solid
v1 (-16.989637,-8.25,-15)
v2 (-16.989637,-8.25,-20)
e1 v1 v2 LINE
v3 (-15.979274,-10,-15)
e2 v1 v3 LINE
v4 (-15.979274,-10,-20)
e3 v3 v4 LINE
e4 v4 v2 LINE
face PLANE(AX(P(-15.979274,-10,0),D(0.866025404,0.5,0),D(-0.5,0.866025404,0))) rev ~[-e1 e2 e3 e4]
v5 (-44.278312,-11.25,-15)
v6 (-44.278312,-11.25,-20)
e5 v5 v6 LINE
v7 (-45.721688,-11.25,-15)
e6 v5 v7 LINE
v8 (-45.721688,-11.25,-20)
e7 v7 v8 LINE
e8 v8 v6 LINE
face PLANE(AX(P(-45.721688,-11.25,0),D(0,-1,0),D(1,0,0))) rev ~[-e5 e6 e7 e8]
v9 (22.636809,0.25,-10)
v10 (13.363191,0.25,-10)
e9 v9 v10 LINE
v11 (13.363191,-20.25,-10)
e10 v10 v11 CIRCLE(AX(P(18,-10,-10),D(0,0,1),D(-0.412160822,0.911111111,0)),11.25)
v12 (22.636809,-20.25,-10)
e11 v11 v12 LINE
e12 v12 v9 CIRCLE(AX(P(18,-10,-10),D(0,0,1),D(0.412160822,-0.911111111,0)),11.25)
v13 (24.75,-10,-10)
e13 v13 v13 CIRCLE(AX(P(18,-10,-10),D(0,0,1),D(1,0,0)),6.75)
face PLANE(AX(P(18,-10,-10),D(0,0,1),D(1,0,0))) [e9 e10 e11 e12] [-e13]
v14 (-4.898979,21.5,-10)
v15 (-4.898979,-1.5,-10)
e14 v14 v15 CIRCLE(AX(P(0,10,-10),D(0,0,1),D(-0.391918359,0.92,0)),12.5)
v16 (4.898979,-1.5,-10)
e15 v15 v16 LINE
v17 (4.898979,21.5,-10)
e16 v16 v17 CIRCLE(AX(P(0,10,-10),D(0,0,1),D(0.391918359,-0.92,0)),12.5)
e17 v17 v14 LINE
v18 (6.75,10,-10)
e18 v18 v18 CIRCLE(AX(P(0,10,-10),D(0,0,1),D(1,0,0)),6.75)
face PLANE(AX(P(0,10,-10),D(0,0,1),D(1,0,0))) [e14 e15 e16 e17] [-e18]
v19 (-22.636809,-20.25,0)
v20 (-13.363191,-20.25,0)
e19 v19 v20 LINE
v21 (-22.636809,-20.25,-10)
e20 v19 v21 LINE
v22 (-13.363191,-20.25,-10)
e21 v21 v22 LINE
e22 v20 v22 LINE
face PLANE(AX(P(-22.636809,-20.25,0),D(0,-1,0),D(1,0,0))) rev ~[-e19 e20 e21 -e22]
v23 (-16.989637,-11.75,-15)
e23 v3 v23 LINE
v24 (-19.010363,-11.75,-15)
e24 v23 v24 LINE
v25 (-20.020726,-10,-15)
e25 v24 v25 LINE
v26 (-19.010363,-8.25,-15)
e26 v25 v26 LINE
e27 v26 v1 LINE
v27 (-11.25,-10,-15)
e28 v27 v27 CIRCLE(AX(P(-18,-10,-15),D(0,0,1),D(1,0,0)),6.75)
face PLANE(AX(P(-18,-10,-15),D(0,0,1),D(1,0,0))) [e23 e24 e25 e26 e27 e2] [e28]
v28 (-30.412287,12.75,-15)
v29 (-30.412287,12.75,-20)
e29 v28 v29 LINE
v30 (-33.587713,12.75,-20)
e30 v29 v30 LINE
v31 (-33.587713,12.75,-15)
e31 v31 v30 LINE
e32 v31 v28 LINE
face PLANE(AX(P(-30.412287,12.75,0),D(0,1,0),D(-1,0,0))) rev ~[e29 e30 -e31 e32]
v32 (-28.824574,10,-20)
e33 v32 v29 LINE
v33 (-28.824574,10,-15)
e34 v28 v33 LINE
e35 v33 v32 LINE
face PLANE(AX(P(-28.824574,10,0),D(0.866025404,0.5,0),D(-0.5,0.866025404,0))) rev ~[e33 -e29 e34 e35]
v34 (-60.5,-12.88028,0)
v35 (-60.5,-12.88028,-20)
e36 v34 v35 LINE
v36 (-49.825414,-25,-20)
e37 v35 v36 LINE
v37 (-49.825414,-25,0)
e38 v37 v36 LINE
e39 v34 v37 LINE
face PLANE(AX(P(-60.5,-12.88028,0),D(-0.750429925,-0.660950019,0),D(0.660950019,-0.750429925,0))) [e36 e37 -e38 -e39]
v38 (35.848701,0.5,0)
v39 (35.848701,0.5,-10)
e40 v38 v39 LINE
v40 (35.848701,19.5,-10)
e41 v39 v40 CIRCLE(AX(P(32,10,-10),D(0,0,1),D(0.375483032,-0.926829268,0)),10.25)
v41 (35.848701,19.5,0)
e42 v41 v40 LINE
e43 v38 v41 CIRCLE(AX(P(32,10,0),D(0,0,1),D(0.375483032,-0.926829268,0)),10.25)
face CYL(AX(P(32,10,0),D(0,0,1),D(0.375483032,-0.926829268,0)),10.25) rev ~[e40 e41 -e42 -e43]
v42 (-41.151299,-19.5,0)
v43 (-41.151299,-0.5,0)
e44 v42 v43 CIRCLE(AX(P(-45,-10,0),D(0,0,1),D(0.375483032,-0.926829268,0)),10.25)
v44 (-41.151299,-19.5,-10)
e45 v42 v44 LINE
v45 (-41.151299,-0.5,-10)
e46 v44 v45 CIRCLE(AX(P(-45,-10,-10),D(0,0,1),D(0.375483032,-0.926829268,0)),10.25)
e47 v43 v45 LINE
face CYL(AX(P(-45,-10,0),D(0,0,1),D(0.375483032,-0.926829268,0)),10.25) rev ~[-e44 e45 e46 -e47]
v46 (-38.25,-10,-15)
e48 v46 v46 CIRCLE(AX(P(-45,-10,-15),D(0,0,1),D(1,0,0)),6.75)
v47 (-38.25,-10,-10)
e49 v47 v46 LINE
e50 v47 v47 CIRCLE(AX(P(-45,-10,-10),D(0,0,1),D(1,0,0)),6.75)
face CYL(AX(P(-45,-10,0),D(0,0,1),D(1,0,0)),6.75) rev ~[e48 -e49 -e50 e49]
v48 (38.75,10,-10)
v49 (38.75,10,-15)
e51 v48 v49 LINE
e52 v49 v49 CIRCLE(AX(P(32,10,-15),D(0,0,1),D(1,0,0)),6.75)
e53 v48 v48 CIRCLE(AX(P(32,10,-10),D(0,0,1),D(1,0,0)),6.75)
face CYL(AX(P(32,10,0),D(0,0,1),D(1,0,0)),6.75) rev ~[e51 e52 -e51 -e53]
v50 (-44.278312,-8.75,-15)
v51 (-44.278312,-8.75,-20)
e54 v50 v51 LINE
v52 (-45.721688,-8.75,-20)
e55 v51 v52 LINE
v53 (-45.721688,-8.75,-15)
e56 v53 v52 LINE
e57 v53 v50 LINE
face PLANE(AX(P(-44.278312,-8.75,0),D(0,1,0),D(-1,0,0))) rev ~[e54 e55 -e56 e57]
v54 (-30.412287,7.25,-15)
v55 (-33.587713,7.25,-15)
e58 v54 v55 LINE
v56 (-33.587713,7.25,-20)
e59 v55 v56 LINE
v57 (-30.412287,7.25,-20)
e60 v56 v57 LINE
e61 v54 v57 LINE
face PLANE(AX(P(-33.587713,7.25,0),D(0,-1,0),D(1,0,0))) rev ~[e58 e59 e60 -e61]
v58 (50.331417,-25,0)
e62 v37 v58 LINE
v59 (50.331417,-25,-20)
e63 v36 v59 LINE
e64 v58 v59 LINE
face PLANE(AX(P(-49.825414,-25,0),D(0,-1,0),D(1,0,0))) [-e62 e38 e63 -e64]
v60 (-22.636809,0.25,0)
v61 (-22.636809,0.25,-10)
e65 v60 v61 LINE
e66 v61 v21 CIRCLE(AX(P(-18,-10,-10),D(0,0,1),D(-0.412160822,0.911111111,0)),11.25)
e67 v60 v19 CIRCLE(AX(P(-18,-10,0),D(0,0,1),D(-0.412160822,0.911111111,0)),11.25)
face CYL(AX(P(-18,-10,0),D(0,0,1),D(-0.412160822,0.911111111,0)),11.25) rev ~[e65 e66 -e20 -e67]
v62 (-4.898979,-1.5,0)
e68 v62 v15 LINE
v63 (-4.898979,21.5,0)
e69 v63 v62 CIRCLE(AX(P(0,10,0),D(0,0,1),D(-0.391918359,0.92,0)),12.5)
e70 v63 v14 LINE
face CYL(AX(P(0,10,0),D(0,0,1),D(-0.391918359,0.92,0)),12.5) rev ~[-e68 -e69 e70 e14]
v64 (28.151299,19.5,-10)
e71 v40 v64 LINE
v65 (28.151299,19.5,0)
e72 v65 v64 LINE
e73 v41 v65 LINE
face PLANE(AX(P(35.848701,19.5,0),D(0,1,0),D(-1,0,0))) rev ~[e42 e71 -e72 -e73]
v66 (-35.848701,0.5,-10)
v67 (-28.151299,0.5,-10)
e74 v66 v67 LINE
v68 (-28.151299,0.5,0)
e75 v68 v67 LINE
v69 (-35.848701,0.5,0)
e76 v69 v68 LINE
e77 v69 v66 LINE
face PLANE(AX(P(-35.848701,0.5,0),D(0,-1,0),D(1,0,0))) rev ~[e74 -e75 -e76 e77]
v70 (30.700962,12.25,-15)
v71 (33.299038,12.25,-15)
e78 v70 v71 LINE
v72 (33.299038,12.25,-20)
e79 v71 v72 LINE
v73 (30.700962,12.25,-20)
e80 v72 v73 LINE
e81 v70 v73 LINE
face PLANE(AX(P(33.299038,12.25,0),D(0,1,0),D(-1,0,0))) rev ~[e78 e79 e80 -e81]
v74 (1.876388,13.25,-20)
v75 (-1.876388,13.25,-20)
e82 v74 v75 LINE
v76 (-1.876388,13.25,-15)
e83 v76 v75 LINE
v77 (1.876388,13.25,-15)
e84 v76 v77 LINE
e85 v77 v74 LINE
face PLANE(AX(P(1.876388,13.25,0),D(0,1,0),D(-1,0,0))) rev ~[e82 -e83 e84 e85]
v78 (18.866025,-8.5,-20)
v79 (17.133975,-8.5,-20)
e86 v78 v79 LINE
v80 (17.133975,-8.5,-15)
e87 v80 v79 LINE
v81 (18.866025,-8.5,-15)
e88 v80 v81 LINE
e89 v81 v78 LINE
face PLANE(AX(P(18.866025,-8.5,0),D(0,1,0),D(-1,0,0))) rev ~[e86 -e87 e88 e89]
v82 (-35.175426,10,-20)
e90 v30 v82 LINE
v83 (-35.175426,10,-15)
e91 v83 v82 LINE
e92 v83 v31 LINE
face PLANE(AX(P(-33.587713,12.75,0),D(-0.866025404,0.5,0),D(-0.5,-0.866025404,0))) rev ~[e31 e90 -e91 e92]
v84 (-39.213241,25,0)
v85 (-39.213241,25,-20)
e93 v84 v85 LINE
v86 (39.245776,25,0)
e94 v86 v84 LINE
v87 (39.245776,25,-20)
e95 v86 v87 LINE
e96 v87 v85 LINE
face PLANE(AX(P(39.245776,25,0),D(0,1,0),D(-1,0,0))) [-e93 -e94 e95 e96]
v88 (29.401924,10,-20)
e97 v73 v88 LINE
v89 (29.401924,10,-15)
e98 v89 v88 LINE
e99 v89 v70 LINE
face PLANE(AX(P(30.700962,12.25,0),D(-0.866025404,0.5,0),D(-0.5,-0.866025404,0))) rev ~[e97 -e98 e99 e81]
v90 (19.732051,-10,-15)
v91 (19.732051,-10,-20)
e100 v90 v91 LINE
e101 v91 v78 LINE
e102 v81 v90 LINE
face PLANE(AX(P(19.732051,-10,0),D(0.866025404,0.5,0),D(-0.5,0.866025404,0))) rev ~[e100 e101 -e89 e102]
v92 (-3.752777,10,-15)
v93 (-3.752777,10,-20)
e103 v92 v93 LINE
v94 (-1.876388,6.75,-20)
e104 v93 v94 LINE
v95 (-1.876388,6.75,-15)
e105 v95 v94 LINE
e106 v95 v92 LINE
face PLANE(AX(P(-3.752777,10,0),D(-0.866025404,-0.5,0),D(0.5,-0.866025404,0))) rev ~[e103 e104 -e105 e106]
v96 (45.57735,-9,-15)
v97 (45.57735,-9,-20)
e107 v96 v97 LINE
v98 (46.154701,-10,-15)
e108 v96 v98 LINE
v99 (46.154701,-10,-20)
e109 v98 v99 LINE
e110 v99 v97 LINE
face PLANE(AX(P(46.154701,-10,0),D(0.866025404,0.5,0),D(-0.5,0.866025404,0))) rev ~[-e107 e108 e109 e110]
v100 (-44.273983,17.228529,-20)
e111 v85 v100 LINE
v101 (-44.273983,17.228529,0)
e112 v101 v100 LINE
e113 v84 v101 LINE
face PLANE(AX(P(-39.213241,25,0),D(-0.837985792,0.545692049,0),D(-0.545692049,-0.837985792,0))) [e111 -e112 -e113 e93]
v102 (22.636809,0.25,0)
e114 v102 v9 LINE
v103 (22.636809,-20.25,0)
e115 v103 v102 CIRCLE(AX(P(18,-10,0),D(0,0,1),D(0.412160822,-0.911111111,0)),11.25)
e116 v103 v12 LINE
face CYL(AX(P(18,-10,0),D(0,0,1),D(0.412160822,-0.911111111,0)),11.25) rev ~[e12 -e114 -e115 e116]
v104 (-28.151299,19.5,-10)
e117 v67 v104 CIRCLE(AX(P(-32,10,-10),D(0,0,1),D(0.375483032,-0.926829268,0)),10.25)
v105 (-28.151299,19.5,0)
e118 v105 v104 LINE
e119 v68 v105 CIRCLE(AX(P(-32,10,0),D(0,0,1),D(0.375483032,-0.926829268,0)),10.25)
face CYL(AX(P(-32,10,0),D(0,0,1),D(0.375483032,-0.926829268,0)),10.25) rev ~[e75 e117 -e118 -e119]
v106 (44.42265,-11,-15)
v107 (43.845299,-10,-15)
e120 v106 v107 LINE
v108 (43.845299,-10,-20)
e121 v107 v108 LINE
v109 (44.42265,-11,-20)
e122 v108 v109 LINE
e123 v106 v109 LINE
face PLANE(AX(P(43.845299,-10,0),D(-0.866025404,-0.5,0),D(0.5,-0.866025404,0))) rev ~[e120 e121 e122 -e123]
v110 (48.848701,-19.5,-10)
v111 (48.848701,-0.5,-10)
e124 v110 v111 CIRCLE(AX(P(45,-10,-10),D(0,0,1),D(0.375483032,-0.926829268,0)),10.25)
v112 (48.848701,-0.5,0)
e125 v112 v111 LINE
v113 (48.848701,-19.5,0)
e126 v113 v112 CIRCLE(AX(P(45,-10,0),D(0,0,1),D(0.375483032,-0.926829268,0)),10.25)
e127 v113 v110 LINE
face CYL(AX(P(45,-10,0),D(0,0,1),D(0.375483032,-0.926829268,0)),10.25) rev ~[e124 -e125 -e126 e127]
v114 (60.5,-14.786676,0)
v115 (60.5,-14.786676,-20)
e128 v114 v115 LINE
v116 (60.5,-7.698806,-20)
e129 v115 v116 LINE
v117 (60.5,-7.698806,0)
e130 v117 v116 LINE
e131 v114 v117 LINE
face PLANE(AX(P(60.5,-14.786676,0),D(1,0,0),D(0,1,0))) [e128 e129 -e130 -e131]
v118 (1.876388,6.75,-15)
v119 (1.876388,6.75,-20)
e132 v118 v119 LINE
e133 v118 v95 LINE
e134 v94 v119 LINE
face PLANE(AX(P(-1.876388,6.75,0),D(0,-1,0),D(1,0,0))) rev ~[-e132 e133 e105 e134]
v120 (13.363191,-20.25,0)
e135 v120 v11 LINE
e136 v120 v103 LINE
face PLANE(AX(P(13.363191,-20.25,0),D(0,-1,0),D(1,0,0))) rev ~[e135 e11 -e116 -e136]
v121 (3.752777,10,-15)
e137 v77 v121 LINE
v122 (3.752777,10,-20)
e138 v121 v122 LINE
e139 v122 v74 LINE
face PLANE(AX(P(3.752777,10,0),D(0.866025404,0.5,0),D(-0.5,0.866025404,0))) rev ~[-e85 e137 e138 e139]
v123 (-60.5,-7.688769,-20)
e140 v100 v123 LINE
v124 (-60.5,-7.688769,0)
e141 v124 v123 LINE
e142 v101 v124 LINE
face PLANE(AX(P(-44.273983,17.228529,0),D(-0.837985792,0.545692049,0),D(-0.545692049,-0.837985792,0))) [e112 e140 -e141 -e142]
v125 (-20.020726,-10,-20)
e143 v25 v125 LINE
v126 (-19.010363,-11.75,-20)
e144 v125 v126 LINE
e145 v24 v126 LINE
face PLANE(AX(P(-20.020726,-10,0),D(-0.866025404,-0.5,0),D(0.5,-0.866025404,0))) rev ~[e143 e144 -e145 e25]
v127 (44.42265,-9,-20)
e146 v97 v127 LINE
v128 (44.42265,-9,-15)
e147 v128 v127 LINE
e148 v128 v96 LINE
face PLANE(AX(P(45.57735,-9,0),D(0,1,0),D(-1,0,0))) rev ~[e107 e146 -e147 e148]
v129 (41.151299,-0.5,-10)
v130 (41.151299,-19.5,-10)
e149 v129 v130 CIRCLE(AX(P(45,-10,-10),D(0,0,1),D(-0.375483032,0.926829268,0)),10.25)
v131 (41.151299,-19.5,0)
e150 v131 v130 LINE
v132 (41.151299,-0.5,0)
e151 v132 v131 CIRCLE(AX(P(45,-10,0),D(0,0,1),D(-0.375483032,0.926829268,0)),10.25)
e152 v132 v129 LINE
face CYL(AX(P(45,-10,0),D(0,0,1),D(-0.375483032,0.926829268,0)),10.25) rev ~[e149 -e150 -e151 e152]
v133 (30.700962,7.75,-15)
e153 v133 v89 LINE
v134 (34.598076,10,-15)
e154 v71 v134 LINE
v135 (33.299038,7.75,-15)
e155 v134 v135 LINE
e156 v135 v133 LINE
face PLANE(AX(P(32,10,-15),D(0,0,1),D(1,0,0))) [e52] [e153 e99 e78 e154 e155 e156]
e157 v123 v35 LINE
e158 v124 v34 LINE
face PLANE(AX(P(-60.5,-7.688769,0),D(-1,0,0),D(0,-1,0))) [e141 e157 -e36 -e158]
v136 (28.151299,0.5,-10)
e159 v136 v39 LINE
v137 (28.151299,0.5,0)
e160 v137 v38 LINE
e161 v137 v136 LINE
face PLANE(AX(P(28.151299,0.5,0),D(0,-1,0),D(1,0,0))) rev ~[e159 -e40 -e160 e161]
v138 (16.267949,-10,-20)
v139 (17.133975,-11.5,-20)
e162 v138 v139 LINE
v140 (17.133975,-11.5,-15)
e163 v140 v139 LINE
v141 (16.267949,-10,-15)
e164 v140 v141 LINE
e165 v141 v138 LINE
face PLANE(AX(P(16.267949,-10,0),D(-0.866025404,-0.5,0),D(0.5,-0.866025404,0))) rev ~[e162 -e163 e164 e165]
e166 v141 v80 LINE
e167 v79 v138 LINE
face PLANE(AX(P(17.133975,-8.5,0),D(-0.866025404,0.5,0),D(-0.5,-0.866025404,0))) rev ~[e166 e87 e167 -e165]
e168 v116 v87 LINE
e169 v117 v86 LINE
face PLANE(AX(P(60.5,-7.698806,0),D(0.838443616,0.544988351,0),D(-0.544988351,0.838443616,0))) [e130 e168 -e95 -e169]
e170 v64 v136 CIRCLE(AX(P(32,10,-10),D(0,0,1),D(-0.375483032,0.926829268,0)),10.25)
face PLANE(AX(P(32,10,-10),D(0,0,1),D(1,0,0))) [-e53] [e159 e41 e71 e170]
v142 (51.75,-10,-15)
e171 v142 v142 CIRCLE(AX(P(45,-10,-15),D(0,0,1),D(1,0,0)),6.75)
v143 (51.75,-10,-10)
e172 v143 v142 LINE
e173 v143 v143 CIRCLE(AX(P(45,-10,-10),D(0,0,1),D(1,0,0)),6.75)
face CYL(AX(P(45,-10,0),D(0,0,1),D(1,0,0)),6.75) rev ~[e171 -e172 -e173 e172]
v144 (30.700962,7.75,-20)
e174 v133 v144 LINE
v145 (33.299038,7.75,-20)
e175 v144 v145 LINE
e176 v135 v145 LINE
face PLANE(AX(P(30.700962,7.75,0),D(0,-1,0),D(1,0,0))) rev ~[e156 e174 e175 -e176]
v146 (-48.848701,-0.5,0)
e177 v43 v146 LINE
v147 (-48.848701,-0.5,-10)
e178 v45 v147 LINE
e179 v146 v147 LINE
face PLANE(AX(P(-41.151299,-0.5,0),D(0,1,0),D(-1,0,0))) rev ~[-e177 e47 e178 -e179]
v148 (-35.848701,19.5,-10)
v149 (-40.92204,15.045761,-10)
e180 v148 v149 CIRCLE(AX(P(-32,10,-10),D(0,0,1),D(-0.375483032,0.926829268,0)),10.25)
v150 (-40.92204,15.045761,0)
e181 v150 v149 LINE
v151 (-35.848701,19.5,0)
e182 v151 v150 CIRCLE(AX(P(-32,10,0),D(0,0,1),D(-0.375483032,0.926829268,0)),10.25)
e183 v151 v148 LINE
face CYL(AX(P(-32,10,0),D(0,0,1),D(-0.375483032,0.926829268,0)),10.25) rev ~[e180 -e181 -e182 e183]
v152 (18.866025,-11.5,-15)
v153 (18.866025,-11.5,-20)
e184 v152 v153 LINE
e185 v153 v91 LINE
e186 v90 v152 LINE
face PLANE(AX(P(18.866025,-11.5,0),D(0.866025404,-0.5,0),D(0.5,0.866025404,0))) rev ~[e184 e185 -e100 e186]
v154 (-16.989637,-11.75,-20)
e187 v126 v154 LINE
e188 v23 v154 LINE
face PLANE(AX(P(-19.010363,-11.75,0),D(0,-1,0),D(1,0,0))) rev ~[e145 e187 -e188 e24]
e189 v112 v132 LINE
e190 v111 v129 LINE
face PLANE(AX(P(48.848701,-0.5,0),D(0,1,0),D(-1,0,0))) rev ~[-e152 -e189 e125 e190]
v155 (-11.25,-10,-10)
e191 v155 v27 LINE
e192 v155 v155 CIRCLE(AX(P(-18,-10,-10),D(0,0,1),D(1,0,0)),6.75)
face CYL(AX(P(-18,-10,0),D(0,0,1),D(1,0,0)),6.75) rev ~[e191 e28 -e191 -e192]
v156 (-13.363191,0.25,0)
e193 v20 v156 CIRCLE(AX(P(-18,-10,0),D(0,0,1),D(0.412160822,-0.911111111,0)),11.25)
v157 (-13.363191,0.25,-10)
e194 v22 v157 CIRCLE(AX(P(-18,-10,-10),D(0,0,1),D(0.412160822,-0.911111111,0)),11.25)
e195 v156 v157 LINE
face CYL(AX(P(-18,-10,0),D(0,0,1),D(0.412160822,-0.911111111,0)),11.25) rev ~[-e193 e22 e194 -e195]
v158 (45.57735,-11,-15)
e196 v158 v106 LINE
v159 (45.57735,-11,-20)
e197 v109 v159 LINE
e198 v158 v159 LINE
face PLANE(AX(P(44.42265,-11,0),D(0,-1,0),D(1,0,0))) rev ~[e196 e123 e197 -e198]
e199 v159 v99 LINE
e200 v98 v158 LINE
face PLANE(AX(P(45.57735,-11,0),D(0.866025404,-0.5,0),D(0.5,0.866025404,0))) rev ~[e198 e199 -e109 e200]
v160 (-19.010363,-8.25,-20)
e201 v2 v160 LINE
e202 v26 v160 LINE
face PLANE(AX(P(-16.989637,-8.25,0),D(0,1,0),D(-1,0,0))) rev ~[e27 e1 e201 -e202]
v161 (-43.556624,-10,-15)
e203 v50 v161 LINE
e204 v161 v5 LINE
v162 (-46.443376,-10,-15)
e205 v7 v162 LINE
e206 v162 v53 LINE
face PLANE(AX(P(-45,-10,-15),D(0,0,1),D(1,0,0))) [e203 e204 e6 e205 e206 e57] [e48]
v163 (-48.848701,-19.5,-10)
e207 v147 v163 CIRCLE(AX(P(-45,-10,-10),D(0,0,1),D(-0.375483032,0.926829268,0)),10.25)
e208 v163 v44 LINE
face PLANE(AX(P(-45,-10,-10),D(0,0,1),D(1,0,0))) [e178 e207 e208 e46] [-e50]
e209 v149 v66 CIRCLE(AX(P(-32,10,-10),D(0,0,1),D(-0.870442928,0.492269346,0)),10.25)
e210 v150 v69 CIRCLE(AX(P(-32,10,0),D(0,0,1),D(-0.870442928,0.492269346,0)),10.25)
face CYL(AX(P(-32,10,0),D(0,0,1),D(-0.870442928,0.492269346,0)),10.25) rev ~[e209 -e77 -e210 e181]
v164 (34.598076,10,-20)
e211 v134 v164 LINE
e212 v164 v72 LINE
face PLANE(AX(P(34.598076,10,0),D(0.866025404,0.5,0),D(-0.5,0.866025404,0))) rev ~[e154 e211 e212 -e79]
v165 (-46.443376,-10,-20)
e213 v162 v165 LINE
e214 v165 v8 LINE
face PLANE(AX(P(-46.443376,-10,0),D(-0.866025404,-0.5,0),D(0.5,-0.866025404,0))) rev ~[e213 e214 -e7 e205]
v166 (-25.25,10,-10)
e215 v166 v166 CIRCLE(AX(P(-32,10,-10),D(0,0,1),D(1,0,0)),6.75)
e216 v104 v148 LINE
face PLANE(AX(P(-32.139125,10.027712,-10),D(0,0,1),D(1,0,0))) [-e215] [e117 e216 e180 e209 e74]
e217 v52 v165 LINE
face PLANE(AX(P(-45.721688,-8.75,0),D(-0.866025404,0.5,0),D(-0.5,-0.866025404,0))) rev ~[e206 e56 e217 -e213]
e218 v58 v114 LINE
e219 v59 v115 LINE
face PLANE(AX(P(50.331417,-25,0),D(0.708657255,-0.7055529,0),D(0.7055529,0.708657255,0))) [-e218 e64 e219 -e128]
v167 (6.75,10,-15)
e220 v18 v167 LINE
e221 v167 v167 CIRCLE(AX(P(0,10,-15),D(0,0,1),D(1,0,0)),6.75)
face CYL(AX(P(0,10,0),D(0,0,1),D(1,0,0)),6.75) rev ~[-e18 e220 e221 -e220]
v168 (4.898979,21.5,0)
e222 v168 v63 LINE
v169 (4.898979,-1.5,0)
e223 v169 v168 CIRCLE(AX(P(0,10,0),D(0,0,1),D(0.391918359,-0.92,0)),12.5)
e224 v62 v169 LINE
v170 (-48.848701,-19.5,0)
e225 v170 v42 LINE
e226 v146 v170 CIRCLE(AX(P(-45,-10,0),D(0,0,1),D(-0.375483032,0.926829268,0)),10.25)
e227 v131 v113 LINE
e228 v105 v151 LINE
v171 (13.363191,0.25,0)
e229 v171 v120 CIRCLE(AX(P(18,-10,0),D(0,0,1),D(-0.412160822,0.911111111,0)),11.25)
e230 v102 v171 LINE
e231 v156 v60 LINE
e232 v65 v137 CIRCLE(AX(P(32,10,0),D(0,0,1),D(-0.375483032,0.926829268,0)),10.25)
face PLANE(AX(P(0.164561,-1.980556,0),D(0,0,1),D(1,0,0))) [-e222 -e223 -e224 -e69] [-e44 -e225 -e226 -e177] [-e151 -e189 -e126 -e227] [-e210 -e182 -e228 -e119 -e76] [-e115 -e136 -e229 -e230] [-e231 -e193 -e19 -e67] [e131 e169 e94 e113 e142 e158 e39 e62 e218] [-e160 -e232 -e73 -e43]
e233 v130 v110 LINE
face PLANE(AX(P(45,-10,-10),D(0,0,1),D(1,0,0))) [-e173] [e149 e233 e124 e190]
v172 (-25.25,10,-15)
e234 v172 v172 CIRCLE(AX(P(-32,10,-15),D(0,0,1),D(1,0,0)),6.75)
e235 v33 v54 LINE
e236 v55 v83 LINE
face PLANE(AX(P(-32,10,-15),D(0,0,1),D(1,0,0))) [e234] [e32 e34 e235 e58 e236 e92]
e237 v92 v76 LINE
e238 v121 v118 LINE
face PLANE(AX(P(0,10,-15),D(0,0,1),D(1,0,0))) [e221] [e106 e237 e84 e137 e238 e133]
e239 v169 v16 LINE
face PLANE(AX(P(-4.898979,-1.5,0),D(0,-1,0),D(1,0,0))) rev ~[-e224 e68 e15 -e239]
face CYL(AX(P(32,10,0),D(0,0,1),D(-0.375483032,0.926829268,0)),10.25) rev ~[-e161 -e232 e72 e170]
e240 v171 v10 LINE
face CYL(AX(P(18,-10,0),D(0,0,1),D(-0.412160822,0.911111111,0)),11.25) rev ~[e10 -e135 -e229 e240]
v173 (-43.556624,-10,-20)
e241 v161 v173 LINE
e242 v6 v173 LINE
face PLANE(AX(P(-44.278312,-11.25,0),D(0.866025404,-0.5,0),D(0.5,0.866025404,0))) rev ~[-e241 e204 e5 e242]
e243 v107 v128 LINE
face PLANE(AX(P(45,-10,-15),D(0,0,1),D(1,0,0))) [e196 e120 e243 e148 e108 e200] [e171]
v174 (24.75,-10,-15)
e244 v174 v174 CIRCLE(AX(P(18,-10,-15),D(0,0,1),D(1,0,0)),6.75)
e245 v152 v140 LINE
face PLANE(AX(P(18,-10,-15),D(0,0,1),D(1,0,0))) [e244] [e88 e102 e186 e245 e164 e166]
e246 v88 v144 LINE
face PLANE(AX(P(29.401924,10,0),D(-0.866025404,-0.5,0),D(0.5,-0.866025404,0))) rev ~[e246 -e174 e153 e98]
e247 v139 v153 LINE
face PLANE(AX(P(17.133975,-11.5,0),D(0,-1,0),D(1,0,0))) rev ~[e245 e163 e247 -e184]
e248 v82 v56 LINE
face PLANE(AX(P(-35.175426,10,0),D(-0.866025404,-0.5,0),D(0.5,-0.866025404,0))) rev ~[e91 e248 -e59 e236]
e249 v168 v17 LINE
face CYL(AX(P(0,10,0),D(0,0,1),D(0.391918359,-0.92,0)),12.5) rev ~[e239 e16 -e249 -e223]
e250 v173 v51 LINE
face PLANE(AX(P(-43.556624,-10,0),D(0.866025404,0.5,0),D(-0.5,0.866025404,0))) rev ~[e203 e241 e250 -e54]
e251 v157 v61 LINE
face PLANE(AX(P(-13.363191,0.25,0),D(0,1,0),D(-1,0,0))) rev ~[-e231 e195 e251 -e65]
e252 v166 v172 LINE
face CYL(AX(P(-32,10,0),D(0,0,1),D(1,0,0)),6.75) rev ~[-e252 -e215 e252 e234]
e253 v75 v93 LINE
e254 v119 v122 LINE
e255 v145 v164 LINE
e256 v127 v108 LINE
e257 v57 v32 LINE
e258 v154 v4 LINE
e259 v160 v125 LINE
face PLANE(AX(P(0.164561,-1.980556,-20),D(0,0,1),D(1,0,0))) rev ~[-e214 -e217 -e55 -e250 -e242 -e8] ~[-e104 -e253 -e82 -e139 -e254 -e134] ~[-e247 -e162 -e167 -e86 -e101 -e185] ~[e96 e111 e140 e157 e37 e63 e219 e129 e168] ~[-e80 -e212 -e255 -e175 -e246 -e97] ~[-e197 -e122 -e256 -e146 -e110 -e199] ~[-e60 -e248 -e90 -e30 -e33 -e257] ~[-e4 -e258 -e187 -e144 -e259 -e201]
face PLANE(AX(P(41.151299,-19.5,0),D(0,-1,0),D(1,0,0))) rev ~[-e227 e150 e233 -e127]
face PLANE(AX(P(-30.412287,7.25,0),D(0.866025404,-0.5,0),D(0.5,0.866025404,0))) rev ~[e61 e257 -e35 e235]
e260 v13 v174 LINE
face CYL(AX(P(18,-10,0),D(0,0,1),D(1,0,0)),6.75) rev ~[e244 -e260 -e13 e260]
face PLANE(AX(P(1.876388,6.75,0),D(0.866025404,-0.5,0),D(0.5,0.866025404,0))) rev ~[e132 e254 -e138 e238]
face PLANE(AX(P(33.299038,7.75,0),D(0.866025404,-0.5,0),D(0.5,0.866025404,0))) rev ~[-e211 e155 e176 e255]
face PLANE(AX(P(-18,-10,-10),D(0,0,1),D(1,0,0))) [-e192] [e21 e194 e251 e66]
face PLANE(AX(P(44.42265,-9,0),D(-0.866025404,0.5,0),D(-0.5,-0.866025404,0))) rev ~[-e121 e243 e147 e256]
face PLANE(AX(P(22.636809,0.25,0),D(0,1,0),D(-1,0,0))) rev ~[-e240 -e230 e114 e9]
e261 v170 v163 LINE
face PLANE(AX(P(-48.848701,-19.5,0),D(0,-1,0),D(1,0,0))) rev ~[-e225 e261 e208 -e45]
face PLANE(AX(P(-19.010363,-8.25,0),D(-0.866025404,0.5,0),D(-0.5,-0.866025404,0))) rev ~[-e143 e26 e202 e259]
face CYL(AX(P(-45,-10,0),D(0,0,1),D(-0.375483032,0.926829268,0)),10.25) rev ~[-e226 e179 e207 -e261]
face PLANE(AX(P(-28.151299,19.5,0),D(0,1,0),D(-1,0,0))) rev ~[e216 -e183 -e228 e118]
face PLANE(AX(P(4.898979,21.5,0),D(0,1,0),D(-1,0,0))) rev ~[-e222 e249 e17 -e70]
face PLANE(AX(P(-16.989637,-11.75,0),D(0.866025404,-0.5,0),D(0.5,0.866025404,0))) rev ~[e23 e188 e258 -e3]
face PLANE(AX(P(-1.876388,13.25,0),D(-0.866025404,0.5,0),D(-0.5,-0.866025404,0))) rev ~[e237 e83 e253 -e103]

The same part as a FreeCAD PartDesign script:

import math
import FreeCAD as App
import Part
import Sketcher

V = App.Vector
Q = App.Units.Quantity


def add_polygon(sketch, points):
    """Adds a closed chain of lines whose ends are joined by coincident constraints."""
    first, n = sketch.GeometryCount, len(points)
    for a, b in zip(points, points[1:] + points[:1]):
        sketch.addGeometry(Part.LineSegment(App.Vector(*a, 0), App.Vector(*b, 0)), False)
    for i in range(n):
        sketch.addConstraint(Sketcher.Constraint("Coincident", first + i, 2, first + (i + 1) % n, 1))

doc = App.newDocument("Part")
body = doc.addObject("PartDesign::Body", "Body")

sketch1 = body.newObject("Sketcher::SketchObject", "Sketch")
sketch1.AttachmentSupport = (doc.getObject("XY_Plane"), [""])
sketch1.MapMode = "FlatFace"
add_polygon(sketch1, [(39, 25), (-39, 25), (-44, 17), (-60, -8), (-60, -13), (-50, -25), (50, -25), (60, -15), (60, -8)])
sketch1.addConstraint(Sketcher.Constraint("Horizontal", 0))
sketch1.addConstraint(Sketcher.Constraint("Vertical", 3))
sketch1.addConstraint(Sketcher.Constraint("Horizontal", 5))
sketch1.addConstraint(Sketcher.Constraint("Vertical", 7))
sketch1.addConstraint(Sketcher.Constraint("Parallel", 1, 2))
sketch1.addConstraint(Sketcher.Constraint("DistanceY", -1, 1, 0, 2, Q("25 mm")))
sketch1.addConstraint(Sketcher.Constraint("DistanceY", 4, 2, -1, 1, Q("25 mm")))
sketch1.addConstraint(Sketcher.Constraint("DistanceX", 3, 2, 6, 2, Q("121 mm")))
sketch1.addConstraint(Sketcher.Constraint("DistanceX", 2, 2, -1, 1, Q("60.5 mm")))
sketch1.addConstraint(Sketcher.Constraint("DistanceX", 5, 1, 5, 2, Q("100.156831 mm")))
sketch1.addConstraint(Sketcher.Constraint("DistanceY", 3, 2, 3, 1, Q("5.191511 mm")))
sketch1.addConstraint(Sketcher.Constraint("DistanceY", 7, 1, 7, 2, Q("7.08787 mm")))
sketch1.addConstraint(Sketcher.Constraint("DistanceY", 2, 2, 1, 2, Q("24.917298 mm")))
sketch1.addConstraint(Sketcher.Constraint("DistanceX", 1, 2, 5, 2, Q("94.6054 mm")))
sketch1.addConstraint(Sketcher.Constraint("Distance", 1, Q("9.273989 mm")))
sketch1.addConstraint(Sketcher.Constraint("Distance", 2, Q("29.73475 mm")))
sketch1.addConstraint(Sketcher.Constraint("Distance", 6, Q("14.412219 mm")))
sketch1.addConstraint(Sketcher.Constraint("Distance", 8, Q("38.99941 mm")))
pad1 = body.newObject("PartDesign::Pad", "Pad")
pad1.Profile = sketch1
pad1.Length = 20
pad1.Reversed = True

sketch2 = body.newObject("Sketcher::SketchObject", "Sketch001")
sketch2.AttachmentSupport = (doc.getObject("XY_Plane"), [""])
sketch2.MapMode = "FlatFace"
add_polygon(sketch2, [(-28.8, 10), (-30.4, 12.8), (-33.6, 12.8), (-35.2, 10), (-33.6, 7.2), (-30.4, 7.2)])
add_polygon(sketch2, [(-1.9, 6.8), (1.9, 6.8), (3.8, 10), (1.9, 13.2), (-1.9, 13.2), (-3.8, 10)])
add_polygon(sketch2, [(33.3, 7.8), (34.6, 10), (33.3, 12.2), (30.7, 12.2), (29.4, 10), (30.7, 7.8)])
add_polygon(sketch2, [(-44.3, -11.2), (-43.6, -10), (-44.3, -8.8), (-45.7, -8.8), (-46.4, -10), (-45.7, -11.2)])
add_polygon(sketch2, [(-19, -11.8), (-17, -11.8), (-16, -10), (-17, -8.2), (-19, -8.2), (-20, -10)])
add_polygon(sketch2, [(17.1, -11.5), (18.9, -11.5), (19.7, -10), (18.9, -8.5), (17.1, -8.5), (16.3, -10)])
add_polygon(sketch2, [(44.4, -11), (45.6, -11), (46.2, -10), (45.6, -9), (44.4, -9), (43.8, -10)])
sketch2.addConstraint(Sketcher.Constraint("Horizontal", 1))
sketch2.addConstraint(Sketcher.Constraint("Horizontal", 4))
sketch2.addConstraint(Sketcher.Constraint("Horizontal", 6))
sketch2.addConstraint(Sketcher.Constraint("Horizontal", 9))
sketch2.addConstraint(Sketcher.Constraint("Horizontal", 14))
sketch2.addConstraint(Sketcher.Constraint("Horizontal", 17))
sketch2.addConstraint(Sketcher.Constraint("Horizontal", 20))
sketch2.addConstraint(Sketcher.Constraint("Horizontal", 23))
sketch2.addConstraint(Sketcher.Constraint("Horizontal", 24))
sketch2.addConstraint(Sketcher.Constraint("Horizontal", 27))
sketch2.addConstraint(Sketcher.Constraint("Horizontal", 30))
sketch2.addConstraint(Sketcher.Constraint("Horizontal", 33))
sketch2.addConstraint(Sketcher.Constraint("Horizontal", 36))
sketch2.addConstraint(Sketcher.Constraint("Horizontal", 39))
sketch2.addConstraint(Sketcher.Constraint("Symmetric", 7, 2, 10, 2, -2))
sketch2.addConstraint(Sketcher.Constraint("Parallel", 0, 3))
sketch2.addConstraint(Sketcher.Constraint("Parallel", 2, 5))
sketch2.addConstraint(Sketcher.Constraint("Parallel", 5, 7))
sketch2.addConstraint(Sketcher.Constraint("Parallel", 3, 8))
sketch2.addConstraint(Sketcher.Constraint("Parallel", 7, 10))
sketch2.addConstraint(Sketcher.Constraint("Parallel", 8, 11))
sketch2.addConstraint(Sketcher.Constraint("Parallel", 10, 12))
sketch2.addConstraint(Sketcher.Constraint("Parallel", 11, 13))
sketch2.addConstraint(Sketcher.Constraint("Parallel", 12, 15))
sketch2.addConstraint(Sketcher.Constraint("Parallel", 13, 16))
sketch2.addConstraint(Sketcher.Constraint("Parallel", 15, 18))
sketch2.addConstraint(Sketcher.Constraint("Parallel", 16, 19))
sketch2.addConstraint(Sketcher.Constraint("Parallel", 18, 21))
sketch2.addConstraint(Sketcher.Constraint("Parallel", 19, 22))
sketch2.addConstraint(Sketcher.Constraint("Parallel", 21, 25))
sketch2.addConstraint(Sketcher.Constraint("Parallel", 22, 26))
sketch2.addConstraint(Sketcher.Constraint("Parallel", 25, 28))
sketch2.addConstraint(Sketcher.Constraint("Parallel", 26, 29))
sketch2.addConstraint(Sketcher.Constraint("Parallel", 28, 31))
sketch2.addConstraint(Sketcher.Constraint("Parallel", 29, 32))
sketch2.addConstraint(Sketcher.Constraint("Parallel", 31, 34))
sketch2.addConstraint(Sketcher.Constraint("Parallel", 32, 35))
sketch2.addConstraint(Sketcher.Constraint("Parallel", 34, 37))
sketch2.addConstraint(Sketcher.Constraint("Parallel", 35, 38))
sketch2.addConstraint(Sketcher.Constraint("Parallel", 37, 40))
sketch2.addConstraint(Sketcher.Constraint("Parallel", 38, 41))
sketch2.addConstraint(Sketcher.Constraint("Horizontal", 2, 2, 5, 2))
sketch2.addConstraint(Sketcher.Constraint("Horizontal", 5, 2, 7, 2))
sketch2.addConstraint(Sketcher.Constraint("Horizontal", 10, 2, 12, 2))
sketch2.addConstraint(Sketcher.Constraint("Horizontal", 12, 2, 15, 2))
sketch2.addConstraint(Sketcher.Constraint("Horizontal", 18, 2, 21, 2))
sketch2.addConstraint(Sketcher.Constraint("Horizontal", 21, 2, 25, 2))
sketch2.addConstraint(Sketcher.Constraint("Horizontal", 25, 2, 28, 2))
sketch2.addConstraint(Sketcher.Constraint("Horizontal", 28, 2, 31, 2))
sketch2.addConstraint(Sketcher.Constraint("Horizontal", 31, 2, 34, 2))
sketch2.addConstraint(Sketcher.Constraint("Horizontal", 34, 2, 37, 2))
sketch2.addConstraint(Sketcher.Constraint("Horizontal", 37, 2, 40, 2))
sketch2.addConstraint(Sketcher.Constraint("Vertical", 1, 2, 3, 2))
sketch2.addConstraint(Sketcher.Constraint("Vertical", 0, 2, 4, 2))
sketch2.addConstraint(Sketcher.Constraint("Vertical", 6, 2, 8, 2))
sketch2.addConstraint(Sketcher.Constraint("Vertical", 14, 2, 16, 2))
sketch2.addConstraint(Sketcher.Constraint("Vertical", 20, 2, 22, 2))
sketch2.addConstraint(Sketcher.Constraint("Vertical", 24, 2, 26, 2))
sketch2.addConstraint(Sketcher.Constraint("Vertical", 30, 2, 32, 2))
sketch2.addConstraint(Sketcher.Constraint("Vertical", 36, 2, 38, 2))
sketch2.addConstraint(Sketcher.Constraint("Angle", 0, Q("120 deg")))
sketch2.addConstraint(Sketcher.Constraint("DistanceY", -1, 1, 2, 2, Q("10 mm")))
sketch2.addConstraint(Sketcher.Constraint("DistanceY", 18, 2, -1, 1, Q("10 mm")))
sketch2.addConstraint(Sketcher.Constraint("DistanceY", 36, 2, -1, 1, Q("11 mm")))
sketch2.addConstraint(Sketcher.Constraint("DistanceY", 6, 2, 0, 2, Q("6 mm")))
sketch2.addConstraint(Sketcher.Constraint("DistanceY", 13, 2, 8, 2, Q("1 mm")))
sketch2.addConstraint(Sketcher.Constraint("DistanceY", 19, 2, 3, 2, Q("16 mm")))
sketch2.addConstraint(Sketcher.Constraint("DistanceY", 24, 2, 4, 2, Q("19 mm")))
sketch2.addConstraint(Sketcher.Constraint("DistanceY", 30, 2, 32, 2, Q("3 mm")))
sketch2.addConstraint(Sketcher.Constraint("DistanceY", 3, 2, 1, 2, Q("5.5 mm")))
sketch2.addConstraint(Sketcher.Constraint("DistanceX", 36, 1, 36, 2, Q("1.154701 mm")))
sketch2.addConstraint(Sketcher.Constraint("DistanceX", 30, 1, 30, 2, Q("1.732051 mm")))
sketch2.addConstraint(Sketcher.Constraint("DistanceX", -1, 1, 37, 2, Q("46.154701 mm")))
sketch2.addConstraint(Sketcher.Constraint("DistanceX", 3, 2, 6, 2, Q("35.464102 mm")))
sketch2.addConstraint(Sketcher.Constraint("DistanceX", 0, 2, 9, 2, Q("28.535898 mm")))
sketch2.addConstraint(Sketcher.Constraint("DistanceX", 7, 2, 12, 2, Q("30.845299 mm")))
sketch2.addConstraint(Sketcher.Constraint("DistanceX", 19, 2, 3, 2, Q("10.690599 mm")))
sketch2.addConstraint(Sketcher.Constraint("DistanceX", 20, 2, 4, 2, Q("15.309401 mm")))
sketch2.addConstraint(Sketcher.Constraint("DistanceX", 5, 2, 25, 2, Q("12.845299 mm")))
sketch2.addConstraint(Sketcher.Constraint("DistanceX", 30, 2, 15, 2, Q("10.535898 mm")))
sketch2.addConstraint(Sketcher.Constraint("DistanceX", 31, 2, 36, 2, Q("25.845299 mm")))
sketch2.addConstraint(Sketcher.Constraint("DistanceX", 1, 2, 1, 1, Q("3.175426 mm")))
sketch2.addConstraint(Sketcher.Constraint("DistanceX", 24, 1, 24, 2, Q("2.020726 mm")))
pocket1 = body.newObject("PartDesign::Pocket", "Pocket")
pocket1.Profile = sketch2
pocket1.Length = 25

sketch3 = body.newObject("Sketcher::SketchObject", "Sketch002")
sketch3.AttachmentSupport = (doc.getObject("XY_Plane"), [""])
sketch3.MapMode = "FlatFace"
sketch3.addGeometry(Part.Circle(V(-32, 10, 0), V(0, 0, 1), 6.8), False)
add_polygon(sketch3, [(-35.2, 10), (-33.6, 12.8), (-30.4, 12.8), (-28.8, 10), (-30.4, 7.2), (-33.6, 7.2)])
sketch3.addGeometry(Part.Circle(V(0, 10, 0), V(0, 0, 1), 6.8), False)
add_polygon(sketch3, [(1.9, 13.2), (3.8, 10), (1.9, 6.8), (-1.9, 6.8), (-3.8, 10), (-1.9, 13.2)])
sketch3.addGeometry(Part.Circle(V(32, 10, 0), V(0, 0, 1), 6.8), False)
add_polygon(sketch3, [(30.7, 12.2), (33.3, 12.2), (34.6, 10), (33.3, 7.8), (30.7, 7.8), (29.4, 10)])
sketch3.addGeometry(Part.Circle(V(45, -10, 0), V(0, 0, 1), 6.8), False)
add_polygon(sketch3, [(45.6, -9), (46.2, -10), (45.6, -11), (44.4, -11), (43.8, -10), (44.4, -9)])
sketch3.addGeometry(Part.Circle(V(18, -10, 0), V(0, 0, 1), 6.8), False)
add_polygon(sketch3, [(18.9, -8.5), (19.7, -10), (18.9, -11.5), (17.1, -11.5), (16.3, -10), (17.1, -8.5)])
sketch3.addGeometry(Part.Circle(V(-18, -10, 0), V(0, 0, 1), 6.8), False)
add_polygon(sketch3, [(-17, -8.2), (-16, -10), (-17, -11.8), (-19, -11.8), (-20, -10), (-19, -8.2)])
sketch3.addGeometry(Part.Circle(V(-45, -10, 0), V(0, 0, 1), 6.8), False)
add_polygon(sketch3, [(-45.7, -8.8), (-44.3, -8.8), (-43.6, -10), (-44.3, -11.2), (-45.7, -11.2), (-46.4, -10)])
sketch3.addConstraint(Sketcher.Constraint("Horizontal", 2))
sketch3.addConstraint(Sketcher.Constraint("Horizontal", 5))
sketch3.addConstraint(Sketcher.Constraint("Horizontal", 10))
sketch3.addConstraint(Sketcher.Constraint("Horizontal", 13))
sketch3.addConstraint(Sketcher.Constraint("Horizontal", 15))
sketch3.addConstraint(Sketcher.Constraint("Horizontal", 18))
sketch3.addConstraint(Sketcher.Constraint("Horizontal", 24))
sketch3.addConstraint(Sketcher.Constraint("Horizontal", 27))
sketch3.addConstraint(Sketcher.Constraint("Horizontal", 31))
sketch3.addConstraint(Sketcher.Constraint("Horizontal", 34))
sketch3.addConstraint(Sketcher.Constraint("Horizontal", 38))
sketch3.addConstraint(Sketcher.Constraint("Horizontal", 41))
sketch3.addConstraint(Sketcher.Constraint("Horizontal", 43))
sketch3.addConstraint(Sketcher.Constraint("Horizontal", 46))
sketch3.addConstraint(Sketcher.Constraint("Equal", 0, 7))
sketch3.addConstraint(Sketcher.Constraint("Equal", 7, 14))
sketch3.addConstraint(Sketcher.Constraint("Equal", 14, 21))
sketch3.addConstraint(Sketcher.Constraint("Equal", 21, 28))
sketch3.addConstraint(Sketcher.Constraint("Equal", 28, 35))
sketch3.addConstraint(Sketcher.Constraint("Equal", 35, 42))
sketch3.addConstraint(Sketcher.Constraint("Symmetric", 0, 3, 14, 3, -2))
sketch3.addConstraint(Sketcher.Constraint("Symmetric", 28, 3, 35, 3, -2))
sketch3.addConstraint(Sketcher.Constraint("Symmetric", 21, 3, 42, 3, -2))
sketch3.addConstraint(Sketcher.Constraint("Symmetric", 8, 2, 11, 2, -2))
sketch3.addConstraint(Sketcher.Constraint("PointOnObject", 7, 3, -2))
sketch3.addConstraint(Sketcher.Constraint("Parallel", 1, 4))
sketch3.addConstraint(Sketcher.Constraint("Parallel", 3, 6))
sketch3.addConstraint(Sketcher.Constraint("Parallel", 6, 8))
sketch3.addConstraint(Sketcher.Constraint("Parallel", 4, 9))
sketch3.addConstraint(Sketcher.Constraint("Parallel", 8, 11))
sketch3.addConstraint(Sketcher.Constraint("Parallel", 9, 12))
sketch3.addConstraint(Sketcher.Constraint("Parallel", 11, 16))
sketch3.addConstraint(Sketcher.Constraint("Parallel", 12, 17))
sketch3.addConstraint(Sketcher.Constraint("Parallel", 16, 19))
sketch3.addConstraint(Sketcher.Constraint("Parallel", 17, 20))
sketch3.addConstraint(Sketcher.Constraint("Parallel", 19, 22))
sketch3.addConstraint(Sketcher.Constraint("Parallel", 20, 23))
sketch3.addConstraint(Sketcher.Constraint("Parallel", 22, 25))
sketch3.addConstraint(Sketcher.Constraint("Parallel", 23, 26))
sketch3.addConstraint(Sketcher.Constraint("Parallel", 25, 29))
sketch3.addConstraint(Sketcher.Constraint("Parallel", 26, 30))
sketch3.addConstraint(Sketcher.Constraint("Parallel", 29, 32))
sketch3.addConstraint(Sketcher.Constraint("Parallel", 30, 33))
sketch3.addConstraint(Sketcher.Constraint("Parallel", 32, 36))
sketch3.addConstraint(Sketcher.Constraint("Parallel", 33, 37))
sketch3.addConstraint(Sketcher.Constraint("Parallel", 36, 39))
sketch3.addConstraint(Sketcher.Constraint("Parallel", 37, 40))
sketch3.addConstraint(Sketcher.Constraint("Parallel", 39, 44))
sketch3.addConstraint(Sketcher.Constraint("Parallel", 40, 45))
sketch3.addConstraint(Sketcher.Constraint("Parallel", 44, 47))
sketch3.addConstraint(Sketcher.Constraint("Parallel", 45, 48))
sketch3.addConstraint(Sketcher.Constraint("Horizontal", 0, 3, 7, 3))
sketch3.addConstraint(Sketcher.Constraint("Horizontal", 21, 3, 28, 3))
sketch3.addConstraint(Sketcher.Constraint("Horizontal", 14, 3, 3, 2))
sketch3.addConstraint(Sketcher.Constraint("Horizontal", 3, 2, 6, 2))
sketch3.addConstraint(Sketcher.Constraint("Horizontal", 6, 2, 8, 2))
sketch3.addConstraint(Sketcher.Constraint("Horizontal", 11, 2, 16, 2))
sketch3.addConstraint(Sketcher.Constraint("Horizontal", 16, 2, 19, 2))
sketch3.addConstraint(Sketcher.Constraint("Horizontal", 42, 3, 22, 2))
sketch3.addConstraint(Sketcher.Constraint("Horizontal", 22, 2, 25, 2))
sketch3.addConstraint(Sketcher.Constraint("Horizontal", 25, 2, 29, 2))
sketch3.addConstraint(Sketcher.Constraint("Horizontal", 29, 2, 32, 2))
sketch3.addConstraint(Sketcher.Constraint("Horizontal", 32, 2, 36, 2))
sketch3.addConstraint(Sketcher.Constraint("Horizontal", 36, 2, 39, 2))
sketch3.addConstraint(Sketcher.Constraint("Horizontal", 39, 2, 44, 2))
sketch3.addConstraint(Sketcher.Constraint("Horizontal", 44, 2, 47, 2))
sketch3.addConstraint(Sketcher.Constraint("Vertical", 2, 2, 4, 2))
sketch3.addConstraint(Sketcher.Constraint("Vertical", 1, 2, 5, 2))
sketch3.addConstraint(Sketcher.Constraint("Vertical", 10, 2, 12, 2))
sketch3.addConstraint(Sketcher.Constraint("Vertical", 15, 2, 17, 2))
sketch3.addConstraint(Sketcher.Constraint("Vertical", 24, 2, 26, 2))
sketch3.addConstraint(Sketcher.Constraint("Vertical", 31, 2, 33, 2))
sketch3.addConstraint(Sketcher.Constraint("Vertical", 38, 2, 40, 2))
sketch3.addConstraint(Sketcher.Constraint("Vertical", 43, 2, 45, 2))
sketch3.addConstraint(Sketcher.Constraint("Diameter", 0, Q("13.5 mm")))
sketch3.addConstraint(Sketcher.Constraint("Angle", 1, Q("60 deg")))
sketch3.addConstraint(Sketcher.Constraint("DistanceX", 0, 3, -1, 1, Q("32 mm")))
sketch3.addConstraint(Sketcher.Constraint("DistanceY", -1, 1, 0, 3, Q("10 mm")))
sketch3.addConstraint(Sketcher.Constraint("DistanceX", -1, 1, 21, 3, Q("45 mm")))
sketch3.addConstraint(Sketcher.Constraint("DistanceY", 21, 3, -1, 1, Q("10 mm")))
sketch3.addConstraint(Sketcher.Constraint("DistanceX", -1, 1, 28, 3, Q("18 mm")))
sketch3.addConstraint(Sketcher.Constraint("DistanceY", 23, 2, -1, 1, Q("11 mm")))
sketch3.addConstraint(Sketcher.Constraint("DistanceY", 15, 2, 13, 2, Q("1 mm")))
sketch3.addConstraint(Sketcher.Constraint("DistanceY", 31, 2, 33, 2, Q("3 mm")))
sketch3.addConstraint(Sketcher.Constraint("DistanceY", 37, 2, 4, 2, Q("19 mm")))
sketch3.addConstraint(Sketcher.Constraint("DistanceY", 43, 2, 5, 2, Q("16 mm")))
sketch3.addConstraint(Sketcher.Constraint("DistanceY", 4, 2, 2, 2, Q("5.5 mm")))
sketch3.addConstraint(Sketcher.Constraint("DistanceY", 10, 2, 12, 2, Q("6.5 mm")))
sketch3.addConstraint(Sketcher.Constraint("DistanceX", 24, 2, 24, 1, Q("1.154701 mm")))
sketch3.addConstraint(Sketcher.Constraint("DistanceX", 31, 2, 31, 1, Q("1.732051 mm")))
sketch3.addConstraint(Sketcher.Constraint("DistanceX", -1, 1, 22, 2, Q("46.154701 mm")))
sketch3.addConstraint(Sketcher.Constraint("DistanceX", 8, 2, 16, 2, Q("30.845299 mm")))
sketch3.addConstraint(Sketcher.Constraint("DistanceX", 30, 2, 19, 2, Q("10.535898 mm")))
sketch3.addConstraint(Sketcher.Constraint("DistanceX", 3, 2, 36, 2, Q("12.845299 mm")))
sketch3.addConstraint(Sketcher.Constraint("DistanceX", 43, 2, 5, 2, Q("10.690599 mm")))
sketch3.addConstraint(Sketcher.Constraint("DistanceX", 2, 1, 2, 2, Q("3.175426 mm")))
sketch3.addConstraint(Sketcher.Constraint("DistanceX", 10, 2, 10, 1, Q("3.752777 mm")))
sketch3.addConstraint(Sketcher.Constraint("DistanceX", 15, 1, 15, 2, Q("2.598076 mm")))
sketch3.addConstraint(Sketcher.Constraint("DistanceX", 38, 2, 38, 1, Q("2.020726 mm")))
sketch3.addConstraint(Sketcher.Constraint("DistanceX", 43, 1, 43, 2, Q("1.443376 mm")))
sketch3.addConstraint(Sketcher.Constraint("DistanceX", 3, 2, 8, 2, Q("32.57735 mm")))
pocket2 = body.newObject("PartDesign::Pocket", "Pocket001")
pocket2.Profile = sketch3
pocket2.Length = 15

sketch4 = body.newObject("Sketcher::SketchObject", "Sketch003")
sketch4.AttachmentSupport = (doc.getObject("XY_Plane"), [""])
sketch4.MapMode = "FlatFace"
sketch4.addGeometry(Part.LineSegment(V(-41, 0, 0), V(-49, 0, 0)), False)
sketch4.addGeometry(Part.ArcOfCircle(Part.Circle(V(-45, -10, 0), V(0, 0, 1), 10), math.radians(112), math.radians(248)), False)
sketch4.addGeometry(Part.LineSegment(V(-49, -20, 0), V(-41, -20, 0)), False)
sketch4.addGeometry(Part.ArcOfCircle(Part.Circle(V(-45, -10, 0), V(0, 0, 1), 10), math.radians(-68), math.radians(68)), False)
sketch4.addGeometry(Part.Circle(V(-45, -10, 0), V(0, 0, 1), 7), False)
sketch4.addGeometry(Part.ArcOfCircle(Part.Circle(V(-32, 10, 0), V(0, 0, 1), 10), math.radians(112), math.radians(151)), False)
sketch4.addGeometry(Part.ArcOfCircle(Part.Circle(V(-32, 10, 0), V(0, 0, 1), 10), math.radians(151), math.radians(248)), False)
sketch4.addGeometry(Part.LineSegment(V(-36, 0, 0), V(-28, 0, 0)), False)
sketch4.addGeometry(Part.ArcOfCircle(Part.Circle(V(-32, 10, 0), V(0, 0, 1), 10), math.radians(-68), math.radians(68)), False)
sketch4.addGeometry(Part.LineSegment(V(-28, 20, 0), V(-36, 20, 0)), False)
sketch4.addGeometry(Part.Circle(V(-32, 10, 0), V(0, 0, 1), 7), False)
sketch4.addGeometry(Part.LineSegment(V(5, 22, 0), V(-5, 22, 0)), False)
sketch4.addGeometry(Part.ArcOfCircle(Part.Circle(V(0, 10, 0), V(0, 0, 1), 12), math.radians(113), math.radians(247)), False)
sketch4.addGeometry(Part.LineSegment(V(-5, -2, 0), V(5, -2, 0)), False)
sketch4.addGeometry(Part.ArcOfCircle(Part.Circle(V(0, 10, 0), V(0, 0, 1), 12), math.radians(-67), math.radians(67)), False)
sketch4.addGeometry(Part.Circle(V(0, 10, 0), V(0, 0, 1), 7), False)
sketch4.addGeometry(Part.LineSegment(V(36, 20, 0), V(28, 20, 0)), False)
sketch4.addGeometry(Part.ArcOfCircle(Part.Circle(V(32, 10, 0), V(0, 0, 1), 10), math.radians(112), math.radians(248)), False)
sketch4.addGeometry(Part.LineSegment(V(28, 0, 0), V(36, 0, 0)), False)
sketch4.addGeometry(Part.ArcOfCircle(Part.Circle(V(32, 10, 0), V(0, 0, 1), 10), math.radians(-68), math.radians(68)), False)
sketch4.addGeometry(Part.Circle(V(32, 10, 0), V(0, 0, 1), 7), False)
sketch4.addGeometry(Part.LineSegment(V(49, 0, 0), V(41, 0, 0)), False)
sketch4.addGeometry(Part.ArcOfCircle(Part.Circle(V(45, -10, 0), V(0, 0, 1), 10), math.radians(112), math.radians(248)), False)
sketch4.addGeometry(Part.LineSegment(V(41, -20, 0), V(49, -20, 0)), False)
sketch4.addGeometry(Part.ArcOfCircle(Part.Circle(V(45, -10, 0), V(0, 0, 1), 10), math.radians(-68), math.radians(68)), False)
sketch4.addGeometry(Part.Circle(V(45, -10, 0), V(0, 0, 1), 7), False)
sketch4.addGeometry(Part.LineSegment(V(23, 0, 0), V(13, 0, 0)), False)
sketch4.addGeometry(Part.ArcOfCircle(Part.Circle(V(18, -10, 0), V(0, 0, 1), 11), math.radians(114), math.radians(246)), False)
sketch4.addGeometry(Part.LineSegment(V(13, -20, 0), V(23, -20, 0)), False)
sketch4.addGeometry(Part.ArcOfCircle(Part.Circle(V(18, -10, 0), V(0, 0, 1), 11), math.radians(-66), math.radians(66)), False)
sketch4.addGeometry(Part.Circle(V(18, -10, 0), V(0, 0, 1), 7), False)
sketch4.addGeometry(Part.LineSegment(V(-13, 0, 0), V(-23, 0, 0)), False)
sketch4.addGeometry(Part.ArcOfCircle(Part.Circle(V(-18, -10, 0), V(0, 0, 1), 11), math.radians(114), math.radians(246)), False)
sketch4.addGeometry(Part.LineSegment(V(-23, -20, 0), V(-13, -20, 0)), False)
sketch4.addGeometry(Part.ArcOfCircle(Part.Circle(V(-18, -10, 0), V(0, 0, 1), 11), math.radians(-66), math.radians(66)), False)
sketch4.addGeometry(Part.Circle(V(-18, -10, 0), V(0, 0, 1), 7), False)
sketch4.addConstraint(Sketcher.Constraint("Coincident", 0, 2, 1, 1))
sketch4.addConstraint(Sketcher.Constraint("Coincident", 1, 2, 2, 1))
sketch4.addConstraint(Sketcher.Constraint("Coincident", 2, 2, 3, 1))
sketch4.addConstraint(Sketcher.Constraint("Coincident", 3, 2, 0, 1))
sketch4.addConstraint(Sketcher.Constraint("Tangent", 5, 2, 6, 1))
sketch4.addConstraint(Sketcher.Constraint("Coincident", 6, 2, 7, 1))
sketch4.addConstraint(Sketcher.Constraint("Coincident", 7, 2, 8, 1))
sketch4.addConstraint(Sketcher.Constraint("Coincident", 8, 2, 9, 1))
sketch4.addConstraint(Sketcher.Constraint("Coincident", 9, 2, 5, 1))
sketch4.addConstraint(Sketcher.Constraint("Coincident", 11, 2, 12, 1))
sketch4.addConstraint(Sketcher.Constraint("Coincident", 12, 2, 13, 1))
sketch4.addConstraint(Sketcher.Constraint("Coincident", 13, 2, 14, 1))
sketch4.addConstraint(Sketcher.Constraint("Coincident", 14, 2, 11, 1))
sketch4.addConstraint(Sketcher.Constraint("Coincident", 16, 2, 17, 1))
sketch4.addConstraint(Sketcher.Constraint("Coincident", 17, 2, 18, 1))
sketch4.addConstraint(Sketcher.Constraint("Coincident", 18, 2, 19, 1))
sketch4.addConstraint(Sketcher.Constraint("Coincident", 19, 2, 16, 1))
sketch4.addConstraint(Sketcher.Constraint("Coincident", 21, 2, 22, 1))
sketch4.addConstraint(Sketcher.Constraint("Coincident", 22, 2, 23, 1))
sketch4.addConstraint(Sketcher.Constraint("Coincident", 23, 2, 24, 1))
sketch4.addConstraint(Sketcher.Constraint("Coincident", 24, 2, 21, 1))
sketch4.addConstraint(Sketcher.Constraint("Coincident", 26, 2, 27, 1))
sketch4.addConstraint(Sketcher.Constraint("Coincident", 27, 2, 28, 1))
sketch4.addConstraint(Sketcher.Constraint("Coincident", 28, 2, 29, 1))
sketch4.addConstraint(Sketcher.Constraint("Coincident", 29, 2, 26, 1))
sketch4.addConstraint(Sketcher.Constraint("Coincident", 31, 2, 32, 1))
sketch4.addConstraint(Sketcher.Constraint("Coincident", 32, 2, 33, 1))
sketch4.addConstraint(Sketcher.Constraint("Coincident", 33, 2, 34, 1))
sketch4.addConstraint(Sketcher.Constraint("Coincident", 34, 2, 31, 1))
sketch4.addConstraint(Sketcher.Constraint("Horizontal", 0))
sketch4.addConstraint(Sketcher.Constraint("Horizontal", 2))
sketch4.addConstraint(Sketcher.Constraint("Horizontal", 7))
sketch4.addConstraint(Sketcher.Constraint("Horizontal", 9))
sketch4.addConstraint(Sketcher.Constraint("Horizontal", 11))
sketch4.addConstraint(Sketcher.Constraint("Horizontal", 13))
sketch4.addConstraint(Sketcher.Constraint("Horizontal", 16))
sketch4.addConstraint(Sketcher.Constraint("Horizontal", 18))
sketch4.addConstraint(Sketcher.Constraint("Horizontal", 21))
sketch4.addConstraint(Sketcher.Constraint("Horizontal", 23))
sketch4.addConstraint(Sketcher.Constraint("Horizontal", 26))
sketch4.addConstraint(Sketcher.Constraint("Horizontal", 28))
sketch4.addConstraint(Sketcher.Constraint("Horizontal", 31))
sketch4.addConstraint(Sketcher.Constraint("Horizontal", 33))
sketch4.addConstraint(Sketcher.Constraint("Coincident", 3, 3, 1, 3))
sketch4.addConstraint(Sketcher.Constraint("Coincident", 4, 3, 1, 3))
sketch4.addConstraint(Sketcher.Constraint("Coincident", 8, 3, 5, 3))
sketch4.addConstraint(Sketcher.Constraint("Coincident", 10, 3, 5, 3))
sketch4.addConstraint(Sketcher.Constraint("Coincident", 14, 3, 12, 3))
sketch4.addConstraint(Sketcher.Constraint("Coincident", 15, 3, 12, 3))
sketch4.addConstraint(Sketcher.Constraint("Coincident", 19, 3, 17, 3))
sketch4.addConstraint(Sketcher.Constraint("Coincident", 20, 3, 17, 3))
sketch4.addConstraint(Sketcher.Constraint("Coincident", 24, 3, 22, 3))
sketch4.addConstraint(Sketcher.Constraint("Coincident", 25, 3, 22, 3))
sketch4.addConstraint(Sketcher.Constraint("Coincident", 29, 3, 27, 3))
sketch4.addConstraint(Sketcher.Constraint("Coincident", 30, 3, 27, 3))
sketch4.addConstraint(Sketcher.Constraint("Coincident", 34, 3, 32, 3))
sketch4.addConstraint(Sketcher.Constraint("Coincident", 35, 3, 32, 3))
sketch4.addConstraint(Sketcher.Constraint("Equal", 1, 3))
sketch4.addConstraint(Sketcher.Constraint("Equal", 3, 5))
sketch4.addConstraint(Sketcher.Constraint("Equal", 5, 6))
sketch4.addConstraint(Sketcher.Constraint("Equal", 6, 8))
sketch4.addConstraint(Sketcher.Constraint("Equal", 4, 10))
sketch4.addConstraint(Sketcher.Constraint("Equal", 12, 14))
sketch4.addConstraint(Sketcher.Constraint("Equal", 10, 15))
sketch4.addConstraint(Sketcher.Constraint("Equal", 8, 17))
sketch4.addConstraint(Sketcher.Constraint("Equal", 17, 19))
sketch4.addConstraint(Sketcher.Constraint("Equal", 15, 20))
sketch4.addConstraint(Sketcher.Constraint("Equal", 19, 22))
sketch4.addConstraint(Sketcher.Constraint("Equal", 22, 24))
sketch4.addConstraint(Sketcher.Constraint("Equal", 20, 25))
sketch4.addConstraint(Sketcher.Constraint("Equal", 27, 29))
sketch4.addConstraint(Sketcher.Constraint("Equal", 25, 30))
sketch4.addConstraint(Sketcher.Constraint("Equal", 29, 32))
sketch4.addConstraint(Sketcher.Constraint("Equal", 32, 34))
sketch4.addConstraint(Sketcher.Constraint("Equal", 30, 35))
sketch4.addConstraint(Sketcher.Constraint("Symmetric", 5, 3, 17, 3, -2))
sketch4.addConstraint(Sketcher.Constraint("Symmetric", 1, 3, 22, 3, -2))
sketch4.addConstraint(Sketcher.Constraint("Symmetric", 27, 3, 32, 3, -2))
sketch4.addConstraint(Sketcher.Constraint("PointOnObject", 12, 3, -2))
sketch4.addConstraint(Sketcher.Constraint("Horizontal", 10, 3, 12, 3))
sketch4.addConstraint(Sketcher.Constraint("Horizontal", 25, 3, 27, 3))
sketch4.addConstraint(Sketcher.Constraint("Horizontal", 9, 2, 16, 2))
sketch4.addConstraint(Sketcher.Constraint("Horizontal", 7, 2, 17, 2))
sketch4.addConstraint(Sketcher.Constraint("Horizontal", 3, 2, 21, 2))
sketch4.addConstraint(Sketcher.Constraint("Horizontal", 2, 2, 22, 2))
sketch4.addConstraint(Sketcher.Constraint("Horizontal", 29, 2, 31, 2))
sketch4.addConstraint(Sketcher.Constraint("Horizontal", 28, 2, 32, 2))
sketch4.addConstraint(Sketcher.Constraint("Vertical", 0, 2, 1, 2))
sketch4.addConstraint(Sketcher.Constraint("Vertical", 7, 2, 8, 2))
sketch4.addConstraint(Sketcher.Constraint("Vertical", 11, 2, 12, 2))
sketch4.addConstraint(Sketcher.Constraint("Vertical", 26, 2, 27, 2))
sketch4.addConstraint(Sketcher.Constraint("Equal", 2, 7))
sketch4.addConstraint(Sketcher.Constraint("Diameter", 4, Q("13.5 mm")))
sketch4.addConstraint(Sketcher.Constraint("Radius", 12, Q("12.5 mm")))
sketch4.addConstraint(Sketcher.Constraint("Radius", 1, Q("10.25 mm")))
sketch4.addConstraint(Sketcher.Constraint("Radius", 27, Q("11.25 mm")))
sketch4.addConstraint(Sketcher.Constraint("DistanceX", 1, 3, -1, 1, Q("45 mm")))
sketch4.addConstraint(Sketcher.Constraint("DistanceY", 1, 3, -1, 1, Q("10 mm")))
sketch4.addConstraint(Sketcher.Constraint("DistanceX", 5, 3, -1, 1, Q("32 mm")))
sketch4.addConstraint(Sketcher.Constraint("DistanceY", -1, 1, 5, 3, Q("10 mm")))
sketch4.addConstraint(Sketcher.Constraint("DistanceX", -1, 1, 27, 3, Q("18 mm")))
sketch4.addConstraint(Sketcher.Constraint("DistanceY", 1, 2, 0, 2, Q("19 mm")))
sketch4.addConstraint(Sketcher.Constraint("DistanceY", 8, 2, 11, 2, Q("2 mm")))
sketch4.addConstraint(Sketcher.Constraint("DistanceY", 27, 2, 26, 2, Q("20.5 mm")))
sketch4.addConstraint(Sketcher.Constraint("DistanceX", 5, 2, -1, 1, Q("40.92204 mm")))
pocket3 = body.newObject("PartDesign::Pocket", "Pocket002")
pocket3.Profile = sketch4
pocket3.Length = 10

doc.recompute()
